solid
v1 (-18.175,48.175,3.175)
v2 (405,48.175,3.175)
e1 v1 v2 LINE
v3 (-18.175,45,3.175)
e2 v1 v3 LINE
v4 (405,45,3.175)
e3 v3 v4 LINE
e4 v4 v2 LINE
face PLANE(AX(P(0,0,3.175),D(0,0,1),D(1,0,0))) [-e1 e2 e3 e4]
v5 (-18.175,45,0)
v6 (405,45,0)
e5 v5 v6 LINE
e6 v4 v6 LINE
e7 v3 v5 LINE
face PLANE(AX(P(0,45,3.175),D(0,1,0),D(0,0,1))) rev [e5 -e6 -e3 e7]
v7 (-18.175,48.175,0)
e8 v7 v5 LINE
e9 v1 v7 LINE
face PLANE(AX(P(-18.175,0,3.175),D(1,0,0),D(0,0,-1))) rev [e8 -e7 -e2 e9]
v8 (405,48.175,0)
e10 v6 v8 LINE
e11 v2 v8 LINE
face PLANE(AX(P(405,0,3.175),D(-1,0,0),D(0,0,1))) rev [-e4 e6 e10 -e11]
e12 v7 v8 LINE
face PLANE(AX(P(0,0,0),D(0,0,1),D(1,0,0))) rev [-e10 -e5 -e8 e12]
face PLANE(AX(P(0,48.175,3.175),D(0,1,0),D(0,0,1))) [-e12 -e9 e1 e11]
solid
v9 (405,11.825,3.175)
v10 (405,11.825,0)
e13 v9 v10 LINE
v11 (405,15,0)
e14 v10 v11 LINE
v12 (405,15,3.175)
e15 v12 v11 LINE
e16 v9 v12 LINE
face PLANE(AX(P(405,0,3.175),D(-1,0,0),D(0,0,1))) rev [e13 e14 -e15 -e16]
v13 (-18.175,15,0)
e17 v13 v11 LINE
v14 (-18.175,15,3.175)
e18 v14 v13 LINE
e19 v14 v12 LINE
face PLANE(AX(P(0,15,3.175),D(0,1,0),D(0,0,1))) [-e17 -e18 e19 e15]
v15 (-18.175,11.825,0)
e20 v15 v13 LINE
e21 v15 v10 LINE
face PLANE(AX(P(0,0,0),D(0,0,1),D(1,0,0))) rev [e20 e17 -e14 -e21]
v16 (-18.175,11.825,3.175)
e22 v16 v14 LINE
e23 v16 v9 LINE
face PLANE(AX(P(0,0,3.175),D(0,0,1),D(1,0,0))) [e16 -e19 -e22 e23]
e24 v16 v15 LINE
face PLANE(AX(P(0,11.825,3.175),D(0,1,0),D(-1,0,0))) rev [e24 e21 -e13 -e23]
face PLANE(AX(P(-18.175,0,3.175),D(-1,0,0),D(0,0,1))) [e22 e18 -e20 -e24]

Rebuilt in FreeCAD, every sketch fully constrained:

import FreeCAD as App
import Part
import Sketcher

V = App.Vector
Q = App.Units.Quantity

doc = App.newDocument("Part")
body = doc.addObject("PartDesign::Body", "Body")

sketch1 = body.newObject("Sketcher::SketchObject", "Sketch")
sketch1.AttachmentSupport = (doc.getObject("XY_Plane"), [""])
sketch1.MapMode = "FlatFace"
sketch1.addGeometry(Part.LineSegment(V(405, 45, 0), V(405, 48.175, 0)), False)
sketch1.addGeometry(Part.LineSegment(V(405, 48.175, 0), V(-18.175, 48.175, 0)), False)
sketch1.addGeometry(Part.LineSegment(V(-18.175, 48.175, 0), V(-18.175, 45, 0)), False)
sketch1.addGeometry(Part.LineSegment(V(-18.175, 45, 0), V(405, 45, 0)), False)
sketch1.addConstraint(Sketcher.Constraint("Coincident", 0, 2, 1, 1))
sketch1.addConstraint(Sketcher.Constraint("Coincident", 1, 2, 2, 1))
sketch1.addConstraint(Sketcher.Constraint("Coincident", 2, 2, 3, 1))
sketch1.addConstraint(Sketcher.Constraint("Coincident", 3, 2, 0, 1))
sketch1.addConstraint(Sketcher.Constraint("Vertical", 0))
sketch1.addConstraint(Sketcher.Constraint("Horizontal", 1))
sketch1.addConstraint(Sketcher.Constraint("Vertical", 2))
sketch1.addConstraint(Sketcher.Constraint("Horizontal", 3))
sketch1.addConstraint(Sketcher.Constraint("DistanceY", 0, 1, 0, 2, Q("0.125 in")))
sketch1.addConstraint(Sketcher.Constraint("DistanceX", 1, 2, 1, 1, 423.175))
sketch1.addConstraint(Sketcher.Constraint("DistanceX", -1, 1, 0, 2, 405.0))
sketch1.addConstraint(Sketcher.Constraint("DistanceY", -1, 1, 0, 2, 48.175))
pad1 = body.newObject("PartDesign::Pad", "Pad")
pad1.Profile = sketch1
pad1.Length = Q("0.125 in")
body2 = doc.addObject("PartDesign::Body", "Body001")

sketch2 = body2.newObject("Sketcher::SketchObject", "Sketch001")
sketch2.AttachmentSupport = (doc.getObject("XY_Plane001"), [""])
sketch2.MapMode = "FlatFace"
sketch2.addGeometry(Part.LineSegment(V(405, 15, 0), V(-18.175, 15, 0)), False)
sketch2.addGeometry(Part.LineSegment(V(-18.175, 15, 0), V(-18.175, 11.825, 0)), False)
sketch2.addGeometry(Part.LineSegment(V(-18.175, 11.825, 0), V(405, 11.825, 0)), False)
sketch2.addGeometry(Part.LineSegment(V(405, 11.825, 0), V(405, 15, 0)), False)
sketch2.addConstraint(Sketcher.Constraint("Coincident", 0, 2, 1, 1))
sketch2.addConstraint(Sketcher.Constraint("Coincident", 1, 2, 2, 1))
sketch2.addConstraint(Sketcher.Constraint("Coincident", 2, 2, 3, 1))
sketch2.addConstraint(Sketcher.Constraint("Coincident", 3, 2, 0, 1))
sketch2.addConstraint(Sketcher.Constraint("Horizontal", 0))
sketch2.addConstraint(Sketcher.Constraint("Vertical", 1))
sketch2.addConstraint(Sketcher.Constraint("Horizontal", 2))
sketch2.addConstraint(Sketcher.Constraint("Vertical", 3))
sketch2.addConstraint(Sketcher.Constraint("DistanceY", 1, 2, 1, 1, Q("0.125 in")))
sketch2.addConstraint(Sketcher.Constraint("DistanceX", 0, 2, 0, 1, 423.175))
sketch2.addConstraint(Sketcher.Constraint("DistanceX", 0, 2, -1, 1, 18.175))
sketch2.addConstraint(Sketcher.Constraint("DistanceY", -1, 1, 0, 2, 15.0))
pad2 = body2.newObject("PartDesign::Pad", "Pad001")
pad2.Profile = sketch2
pad2.Length = Q("0.125 in")

doc.recompute()
